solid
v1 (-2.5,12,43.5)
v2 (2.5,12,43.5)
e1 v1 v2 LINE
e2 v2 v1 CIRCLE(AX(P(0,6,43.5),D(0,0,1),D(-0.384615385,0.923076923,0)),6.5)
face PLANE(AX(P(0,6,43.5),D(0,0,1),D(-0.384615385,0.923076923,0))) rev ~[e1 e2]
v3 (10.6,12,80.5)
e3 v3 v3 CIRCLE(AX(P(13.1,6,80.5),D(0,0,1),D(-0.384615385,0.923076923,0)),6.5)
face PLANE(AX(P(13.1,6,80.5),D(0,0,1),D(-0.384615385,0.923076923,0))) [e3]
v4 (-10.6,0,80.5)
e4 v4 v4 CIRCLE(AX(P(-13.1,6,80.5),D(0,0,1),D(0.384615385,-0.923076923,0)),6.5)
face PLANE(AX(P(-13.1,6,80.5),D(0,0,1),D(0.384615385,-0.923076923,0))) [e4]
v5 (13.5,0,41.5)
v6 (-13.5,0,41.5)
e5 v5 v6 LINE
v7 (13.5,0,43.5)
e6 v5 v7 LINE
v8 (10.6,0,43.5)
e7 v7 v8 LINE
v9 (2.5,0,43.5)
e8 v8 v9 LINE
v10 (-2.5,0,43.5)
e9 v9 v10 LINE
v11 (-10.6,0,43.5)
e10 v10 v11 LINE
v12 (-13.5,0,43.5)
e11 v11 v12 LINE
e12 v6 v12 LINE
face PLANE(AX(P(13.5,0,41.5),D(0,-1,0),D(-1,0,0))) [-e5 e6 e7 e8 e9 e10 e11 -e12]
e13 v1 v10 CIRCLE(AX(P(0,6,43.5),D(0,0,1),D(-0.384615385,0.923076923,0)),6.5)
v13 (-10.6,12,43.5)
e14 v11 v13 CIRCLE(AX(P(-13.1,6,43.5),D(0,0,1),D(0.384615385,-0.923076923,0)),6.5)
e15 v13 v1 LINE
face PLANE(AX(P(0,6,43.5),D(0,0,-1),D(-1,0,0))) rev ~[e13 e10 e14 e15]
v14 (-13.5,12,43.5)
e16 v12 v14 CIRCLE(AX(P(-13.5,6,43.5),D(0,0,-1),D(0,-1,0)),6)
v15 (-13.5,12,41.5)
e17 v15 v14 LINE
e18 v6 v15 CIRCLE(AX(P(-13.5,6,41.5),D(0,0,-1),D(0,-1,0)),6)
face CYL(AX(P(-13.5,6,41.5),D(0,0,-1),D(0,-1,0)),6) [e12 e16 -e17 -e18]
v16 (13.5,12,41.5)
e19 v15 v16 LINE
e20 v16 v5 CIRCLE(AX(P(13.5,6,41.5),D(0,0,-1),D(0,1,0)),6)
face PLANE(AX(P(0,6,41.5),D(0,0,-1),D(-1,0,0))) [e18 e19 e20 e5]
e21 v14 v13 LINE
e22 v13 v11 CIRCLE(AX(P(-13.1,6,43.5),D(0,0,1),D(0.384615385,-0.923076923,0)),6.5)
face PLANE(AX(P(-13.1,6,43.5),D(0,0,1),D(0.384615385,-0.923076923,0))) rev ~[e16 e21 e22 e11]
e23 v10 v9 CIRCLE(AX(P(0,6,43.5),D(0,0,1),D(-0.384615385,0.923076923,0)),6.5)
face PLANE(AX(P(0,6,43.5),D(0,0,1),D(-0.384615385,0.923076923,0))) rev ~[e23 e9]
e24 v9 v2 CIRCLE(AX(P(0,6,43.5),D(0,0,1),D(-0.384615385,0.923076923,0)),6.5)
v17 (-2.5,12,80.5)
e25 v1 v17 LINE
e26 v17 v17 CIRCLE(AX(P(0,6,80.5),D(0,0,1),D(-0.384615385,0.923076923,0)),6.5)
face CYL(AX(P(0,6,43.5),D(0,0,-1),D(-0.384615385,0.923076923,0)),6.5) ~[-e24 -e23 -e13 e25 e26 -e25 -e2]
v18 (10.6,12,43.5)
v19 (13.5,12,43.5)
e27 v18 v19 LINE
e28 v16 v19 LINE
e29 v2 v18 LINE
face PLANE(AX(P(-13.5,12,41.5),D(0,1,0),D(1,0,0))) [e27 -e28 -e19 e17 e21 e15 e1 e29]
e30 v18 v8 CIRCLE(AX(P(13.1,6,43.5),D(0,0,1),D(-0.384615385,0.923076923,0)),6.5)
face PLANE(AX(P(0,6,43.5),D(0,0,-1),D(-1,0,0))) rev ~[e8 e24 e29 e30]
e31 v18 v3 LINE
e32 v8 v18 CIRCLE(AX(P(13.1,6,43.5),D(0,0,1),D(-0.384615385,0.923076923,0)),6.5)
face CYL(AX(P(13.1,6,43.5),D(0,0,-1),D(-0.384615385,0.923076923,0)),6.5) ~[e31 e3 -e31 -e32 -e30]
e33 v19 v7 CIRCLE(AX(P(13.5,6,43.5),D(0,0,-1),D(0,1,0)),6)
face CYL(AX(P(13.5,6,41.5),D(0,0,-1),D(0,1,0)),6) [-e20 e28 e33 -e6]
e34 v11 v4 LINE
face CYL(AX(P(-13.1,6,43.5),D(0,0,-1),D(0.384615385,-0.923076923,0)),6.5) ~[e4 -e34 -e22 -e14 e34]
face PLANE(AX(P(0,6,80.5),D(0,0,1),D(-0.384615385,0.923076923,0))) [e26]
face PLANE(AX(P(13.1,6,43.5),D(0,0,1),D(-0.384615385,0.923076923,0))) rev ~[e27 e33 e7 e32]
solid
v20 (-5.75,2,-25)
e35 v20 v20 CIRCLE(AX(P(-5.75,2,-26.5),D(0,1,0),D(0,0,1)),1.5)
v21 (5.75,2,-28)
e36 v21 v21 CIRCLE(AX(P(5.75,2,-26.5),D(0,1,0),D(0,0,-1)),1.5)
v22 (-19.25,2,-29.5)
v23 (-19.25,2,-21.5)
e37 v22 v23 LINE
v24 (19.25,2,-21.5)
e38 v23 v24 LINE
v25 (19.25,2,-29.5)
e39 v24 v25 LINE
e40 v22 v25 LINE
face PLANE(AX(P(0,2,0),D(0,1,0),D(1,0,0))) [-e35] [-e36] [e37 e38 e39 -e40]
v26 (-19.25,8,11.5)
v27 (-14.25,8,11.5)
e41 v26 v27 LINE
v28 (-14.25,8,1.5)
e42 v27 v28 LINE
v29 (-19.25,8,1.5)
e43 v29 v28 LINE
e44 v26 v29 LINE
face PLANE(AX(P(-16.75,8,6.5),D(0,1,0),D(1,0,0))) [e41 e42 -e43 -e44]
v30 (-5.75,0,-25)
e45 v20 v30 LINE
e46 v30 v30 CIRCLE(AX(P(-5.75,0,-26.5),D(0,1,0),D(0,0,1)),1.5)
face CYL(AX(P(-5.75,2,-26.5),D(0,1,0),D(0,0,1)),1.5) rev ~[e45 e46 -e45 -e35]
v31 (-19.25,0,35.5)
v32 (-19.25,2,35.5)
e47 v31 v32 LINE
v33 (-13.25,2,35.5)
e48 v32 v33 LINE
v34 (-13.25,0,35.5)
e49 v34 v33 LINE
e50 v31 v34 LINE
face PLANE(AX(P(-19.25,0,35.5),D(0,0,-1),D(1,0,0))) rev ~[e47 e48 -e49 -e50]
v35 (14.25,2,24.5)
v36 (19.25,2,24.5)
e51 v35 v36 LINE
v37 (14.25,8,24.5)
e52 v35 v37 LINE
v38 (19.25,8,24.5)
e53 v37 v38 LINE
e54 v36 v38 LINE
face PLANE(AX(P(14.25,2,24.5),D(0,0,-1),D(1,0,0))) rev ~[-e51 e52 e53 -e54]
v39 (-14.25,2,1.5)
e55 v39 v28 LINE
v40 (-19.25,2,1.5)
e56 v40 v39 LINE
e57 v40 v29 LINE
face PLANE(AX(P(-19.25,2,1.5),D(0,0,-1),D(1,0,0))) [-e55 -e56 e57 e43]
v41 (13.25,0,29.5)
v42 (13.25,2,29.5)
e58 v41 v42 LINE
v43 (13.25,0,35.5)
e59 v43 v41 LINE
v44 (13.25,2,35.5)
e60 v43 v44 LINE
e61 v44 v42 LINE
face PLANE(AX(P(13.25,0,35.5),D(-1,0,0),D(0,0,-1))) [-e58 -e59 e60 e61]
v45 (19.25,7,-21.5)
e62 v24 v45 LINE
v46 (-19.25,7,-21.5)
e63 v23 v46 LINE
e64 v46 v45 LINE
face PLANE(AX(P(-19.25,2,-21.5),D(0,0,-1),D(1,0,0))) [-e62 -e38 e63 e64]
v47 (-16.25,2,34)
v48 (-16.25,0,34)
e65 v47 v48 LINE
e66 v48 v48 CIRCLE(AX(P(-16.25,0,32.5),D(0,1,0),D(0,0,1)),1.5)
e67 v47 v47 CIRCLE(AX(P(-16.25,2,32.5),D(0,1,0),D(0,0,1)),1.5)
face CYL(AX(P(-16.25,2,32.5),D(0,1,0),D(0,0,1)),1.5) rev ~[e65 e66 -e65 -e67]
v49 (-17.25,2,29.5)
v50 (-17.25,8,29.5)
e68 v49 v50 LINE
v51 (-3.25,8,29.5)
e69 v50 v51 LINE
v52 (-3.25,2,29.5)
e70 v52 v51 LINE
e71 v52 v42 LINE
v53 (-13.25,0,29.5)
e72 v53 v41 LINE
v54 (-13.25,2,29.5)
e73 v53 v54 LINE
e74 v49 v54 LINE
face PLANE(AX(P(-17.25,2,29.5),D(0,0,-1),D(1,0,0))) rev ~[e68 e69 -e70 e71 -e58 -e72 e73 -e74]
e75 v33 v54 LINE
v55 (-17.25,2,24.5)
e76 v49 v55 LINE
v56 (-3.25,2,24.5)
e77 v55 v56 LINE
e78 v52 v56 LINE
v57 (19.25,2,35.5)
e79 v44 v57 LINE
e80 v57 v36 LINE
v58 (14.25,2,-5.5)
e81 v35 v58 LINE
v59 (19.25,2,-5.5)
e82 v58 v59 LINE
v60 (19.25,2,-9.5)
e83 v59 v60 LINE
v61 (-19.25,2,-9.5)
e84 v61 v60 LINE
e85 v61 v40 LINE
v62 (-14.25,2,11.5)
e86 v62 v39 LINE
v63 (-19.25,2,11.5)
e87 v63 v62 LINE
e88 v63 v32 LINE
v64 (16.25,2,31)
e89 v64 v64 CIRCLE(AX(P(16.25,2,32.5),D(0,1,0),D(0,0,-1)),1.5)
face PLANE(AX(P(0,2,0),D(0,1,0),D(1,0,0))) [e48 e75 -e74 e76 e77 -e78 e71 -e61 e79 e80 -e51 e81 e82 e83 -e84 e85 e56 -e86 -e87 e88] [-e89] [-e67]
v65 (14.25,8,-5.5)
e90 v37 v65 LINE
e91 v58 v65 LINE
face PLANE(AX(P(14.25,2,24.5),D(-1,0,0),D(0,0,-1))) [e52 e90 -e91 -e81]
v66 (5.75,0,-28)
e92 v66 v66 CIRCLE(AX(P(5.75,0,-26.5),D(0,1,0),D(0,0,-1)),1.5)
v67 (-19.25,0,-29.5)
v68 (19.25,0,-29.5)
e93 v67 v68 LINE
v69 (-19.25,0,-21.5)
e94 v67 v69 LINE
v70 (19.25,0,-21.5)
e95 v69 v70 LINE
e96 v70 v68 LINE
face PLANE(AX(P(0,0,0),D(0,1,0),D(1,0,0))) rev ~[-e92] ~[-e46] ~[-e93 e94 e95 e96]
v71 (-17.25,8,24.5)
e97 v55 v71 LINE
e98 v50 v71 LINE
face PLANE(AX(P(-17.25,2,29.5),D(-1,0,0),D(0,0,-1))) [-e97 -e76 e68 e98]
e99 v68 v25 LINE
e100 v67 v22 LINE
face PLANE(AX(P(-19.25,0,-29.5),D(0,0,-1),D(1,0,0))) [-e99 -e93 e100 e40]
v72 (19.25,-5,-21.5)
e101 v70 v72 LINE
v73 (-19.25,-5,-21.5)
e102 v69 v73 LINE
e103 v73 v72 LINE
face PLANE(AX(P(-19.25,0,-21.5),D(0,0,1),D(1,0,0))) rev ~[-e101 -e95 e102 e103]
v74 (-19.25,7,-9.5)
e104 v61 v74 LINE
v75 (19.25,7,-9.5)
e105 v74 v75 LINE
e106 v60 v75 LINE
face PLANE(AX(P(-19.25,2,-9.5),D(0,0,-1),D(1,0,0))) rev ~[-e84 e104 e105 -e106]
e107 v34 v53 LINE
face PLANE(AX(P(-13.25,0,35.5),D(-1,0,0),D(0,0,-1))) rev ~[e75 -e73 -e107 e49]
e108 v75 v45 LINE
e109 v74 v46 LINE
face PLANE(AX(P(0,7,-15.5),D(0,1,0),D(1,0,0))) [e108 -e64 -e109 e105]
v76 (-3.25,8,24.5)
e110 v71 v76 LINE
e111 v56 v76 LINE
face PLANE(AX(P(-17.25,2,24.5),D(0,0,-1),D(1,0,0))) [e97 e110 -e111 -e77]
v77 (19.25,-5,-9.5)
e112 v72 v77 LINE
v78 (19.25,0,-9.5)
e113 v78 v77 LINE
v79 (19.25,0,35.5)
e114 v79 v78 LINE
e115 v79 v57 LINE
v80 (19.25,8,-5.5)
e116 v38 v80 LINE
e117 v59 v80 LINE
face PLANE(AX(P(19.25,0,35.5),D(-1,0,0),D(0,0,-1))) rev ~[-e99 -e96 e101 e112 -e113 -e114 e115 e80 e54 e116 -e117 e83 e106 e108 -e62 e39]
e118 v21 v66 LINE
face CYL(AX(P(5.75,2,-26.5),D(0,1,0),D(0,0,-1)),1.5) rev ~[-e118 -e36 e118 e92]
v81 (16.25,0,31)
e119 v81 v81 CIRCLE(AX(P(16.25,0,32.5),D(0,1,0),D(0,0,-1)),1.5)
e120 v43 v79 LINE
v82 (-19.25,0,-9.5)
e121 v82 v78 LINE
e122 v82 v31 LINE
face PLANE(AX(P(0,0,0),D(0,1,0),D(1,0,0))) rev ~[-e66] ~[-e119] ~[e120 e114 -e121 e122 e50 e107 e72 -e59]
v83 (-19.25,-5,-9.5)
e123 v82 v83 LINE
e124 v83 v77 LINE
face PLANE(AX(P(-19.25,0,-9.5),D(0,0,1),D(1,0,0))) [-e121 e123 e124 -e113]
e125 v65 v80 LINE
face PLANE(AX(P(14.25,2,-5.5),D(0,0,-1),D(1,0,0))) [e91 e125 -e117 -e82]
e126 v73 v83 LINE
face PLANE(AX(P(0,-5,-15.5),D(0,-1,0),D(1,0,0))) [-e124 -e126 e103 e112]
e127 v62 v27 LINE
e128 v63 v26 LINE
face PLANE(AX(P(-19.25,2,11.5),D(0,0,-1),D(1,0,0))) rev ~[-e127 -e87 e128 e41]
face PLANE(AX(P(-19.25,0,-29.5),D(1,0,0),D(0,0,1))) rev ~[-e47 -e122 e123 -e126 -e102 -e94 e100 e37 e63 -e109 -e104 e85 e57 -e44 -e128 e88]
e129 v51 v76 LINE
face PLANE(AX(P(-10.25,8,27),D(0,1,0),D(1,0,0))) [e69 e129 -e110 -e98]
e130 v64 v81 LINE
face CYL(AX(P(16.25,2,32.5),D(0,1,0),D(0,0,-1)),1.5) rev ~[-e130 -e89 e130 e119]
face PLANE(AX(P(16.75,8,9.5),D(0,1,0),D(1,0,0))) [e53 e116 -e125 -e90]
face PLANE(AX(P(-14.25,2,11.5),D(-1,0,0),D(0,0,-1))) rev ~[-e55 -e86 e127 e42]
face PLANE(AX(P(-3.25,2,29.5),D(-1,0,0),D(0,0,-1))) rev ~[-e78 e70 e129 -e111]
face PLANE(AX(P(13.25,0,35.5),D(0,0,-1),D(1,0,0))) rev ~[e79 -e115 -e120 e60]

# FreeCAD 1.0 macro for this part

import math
import FreeCAD as App
import Part
import Sketcher

V = App.Vector

doc = App.newDocument("Part")
body = doc.addObject("PartDesign::Body", "Body")

# Sketch on XZ plane
sketch1 = body.newObject("Sketcher::SketchObject", "Sketch")
sketch1.AttachmentSupport = (doc.getObject("XZ_Plane"), [""])
sketch1.MapMode = "FlatFace"
sketch1.addGeometry(Part.LineSegment(V(-19, -30, 0), V(-19, 36, 0)), False)
sketch1.addGeometry(Part.LineSegment(V(-19, 36, 0), V(-13, 36, 0)), False)
sketch1.addGeometry(Part.LineSegment(V(-13, 36, 0), V(-13, 30, 0)), False)
sketch1.addGeometry(Part.LineSegment(V(-13, 30, 0), V(13, 30, 0)), False)
sketch1.addGeometry(Part.LineSegment(V(13, 30, 0), V(13, 36, 0)), False)
sketch1.addGeometry(Part.LineSegment(V(13, 36, 0), V(19, 36, 0)), False)
sketch1.addGeometry(Part.LineSegment(V(19, 36, 0), V(19, -30, 0)), False)
sketch1.addGeometry(Part.LineSegment(V(19, -30, 0), V(-19, -30, 0)), False)
sketch1.addConstraint(Sketcher.Constraint("Coincident", 0, 2, 1, 1))
sketch1.addConstraint(Sketcher.Constraint("Coincident", 1, 2, 2, 1))
sketch1.addConstraint(Sketcher.Constraint("Coincident", 2, 2, 3, 1))
sketch1.addConstraint(Sketcher.Constraint("Coincident", 3, 2, 4, 1))
sketch1.addConstraint(Sketcher.Constraint("Coincident", 4, 2, 5, 1))
sketch1.addConstraint(Sketcher.Constraint("Coincident", 5, 2, 6, 1))
sketch1.addConstraint(Sketcher.Constraint("Coincident", 6, 2, 7, 1))
sketch1.addConstraint(Sketcher.Constraint("Coincident", 7, 2, 0, 1))
sketch1.addConstraint(Sketcher.Constraint("Vertical", 0))
sketch1.addConstraint(Sketcher.Constraint("Horizontal", 1))
sketch1.addConstraint(Sketcher.Constraint("Vertical", 2))
sketch1.addConstraint(Sketcher.Constraint("Horizontal", 3))
sketch1.addConstraint(Sketcher.Constraint("Vertical", 4))
sketch1.addConstraint(Sketcher.Constraint("Horizontal", 5))
sketch1.addConstraint(Sketcher.Constraint("Vertical", 6))
sketch1.addConstraint(Sketcher.Constraint("Horizontal", 7))
sketch1.addConstraint(Sketcher.Constraint("Symmetric", 1, 2, 4, 2, -2))
sketch1.addConstraint(Sketcher.Constraint("Equal", 1, 5))
sketch1.addConstraint(Sketcher.Constraint("Equal", 5, 2))
sketch1.addConstraint(Sketcher.Constraint("DistanceX", 1, 1, 1, 2, 6.0))
sketch1.addConstraint(Sketcher.Constraint("DistanceY", 0, 1, 0, 2, 65.0))
sketch1.addConstraint(Sketcher.Constraint("DistanceX", 3, 1, 3, 2, 26.5))
sketch1.addConstraint(Sketcher.Constraint("DistanceY", -1, 1, 0, 2, 35.5))
pad1 = body.newObject("PartDesign::Pad", "Pad")
pad1.Profile = sketch1
pad1.Length = 2
pad1.Reversed = True

# Sketch on XZ plane
sketch2 = body.newObject("Sketcher::SketchObject", "Sketch001")
sketch2.AttachmentSupport = (doc.getObject("XZ_Plane"), [""])
sketch2.MapMode = "FlatFace"
sketch2.AttachmentOffset = App.Placement(V(0, 0, -2), App.Rotation())
sketch2.addGeometry(Part.Circle(V(-16.2, 32.5, 0), V(0, 0, 1), 1.5), False)
sketch2.addGeometry(Part.Circle(V(5.8, -26.5, 0), V(0, 0, 1), 1.5), False)
sketch2.addGeometry(Part.Circle(V(-5.8, -26.5, 0), V(0, 0, 1), 1.5), False)
sketch2.addGeometry(Part.Circle(V(16.2, 32.5, 0), V(0, 0, 1), 1.5), False)
sketch2.addConstraint(Sketcher.Constraint("Equal", 0, 1))
sketch2.addConstraint(Sketcher.Constraint("Equal", 1, 2))
sketch2.addConstraint(Sketcher.Constraint("Equal", 2, 3))
sketch2.addConstraint(Sketcher.Constraint("Symmetric", 1, 3, 2, 3, -2))
sketch2.addConstraint(Sketcher.Constraint("Symmetric", 0, 3, 3, 3, -2))
sketch2.addConstraint(Sketcher.Constraint("Diameter", 0, 3.0))
sketch2.addConstraint(Sketcher.Constraint("DistanceX", 0, 3, 1, 3, 22.0))
sketch2.addConstraint(Sketcher.Constraint("DistanceY", 1, 3, 0, 3, 59.0))
sketch2.addConstraint(Sketcher.Constraint("DistanceY", -1, 1, 0, 3, 32.5))
sketch2.addConstraint(Sketcher.Constraint("DistanceX", 2, 3, 1, 3, 11.5))
pocket1 = body.newObject("PartDesign::Pocket", "Pocket")
pocket1.Profile = sketch2
pocket1.Type = "ThroughAll"
pocket1.Reversed = True

# Sketch on XZ plane
sketch3 = body.newObject("Sketcher::SketchObject", "Sketch002")
sketch3.AttachmentSupport = (doc.getObject("XZ_Plane"), [""])
sketch3.MapMode = "FlatFace"
sketch3.AttachmentOffset = App.Placement(V(0, 0, -2), App.Rotation())
sketch3.addGeometry(Part.LineSegment(V(14, -6, 0), V(14, 24, 0)), False)
sketch3.addGeometry(Part.LineSegment(V(14, 24, 0), V(19, 24, 0)), False)
sketch3.addGeometry(Part.LineSegment(V(19, 24, 0), V(19, -6, 0)), False)
sketch3.addGeometry(Part.LineSegment(V(19, -6, 0), V(14, -6, 0)), False)
sketch3.addGeometry(Part.LineSegment(V(-19, 2, 0), V(-19, 12, 0)), False)
sketch3.addGeometry(Part.LineSegment(V(-19, 12, 0), V(-14, 12, 0)), False)
sketch3.addGeometry(Part.LineSegment(V(-14, 12, 0), V(-14, 2, 0)), False)
sketch3.addGeometry(Part.LineSegment(V(-14, 2, 0), V(-19, 2, 0)), False)
sketch3.addGeometry(Part.LineSegment(V(-17, 24, 0), V(-17, 30, 0)), False)
sketch3.addGeometry(Part.LineSegment(V(-17, 30, 0), V(-3, 30, 0)), False)
sketch3.addGeometry(Part.LineSegment(V(-3, 30, 0), V(-3, 24, 0)), False)
sketch3.addGeometry(Part.LineSegment(V(-3, 24, 0), V(-17, 24, 0)), False)
sketch3.addConstraint(Sketcher.Constraint("Coincident", 0, 2, 1, 1))
sketch3.addConstraint(Sketcher.Constraint("Coincident", 1, 2, 2, 1))
sketch3.addConstraint(Sketcher.Constraint("Coincident", 2, 2, 3, 1))
sketch3.addConstraint(Sketcher.Constraint("Coincident", 3, 2, 0, 1))
sketch3.addConstraint(Sketcher.Constraint("Coincident", 4, 2, 5, 1))
sketch3.addConstraint(Sketcher.Constraint("Coincident", 5, 2, 6, 1))
sketch3.addConstraint(Sketcher.Constraint("Coincident", 6, 2, 7, 1))
sketch3.addConstraint(Sketcher.Constraint("Coincident", 7, 2, 4, 1))
sketch3.addConstraint(Sketcher.Constraint("Coincident", 8, 2, 9, 1))
sketch3.addConstraint(Sketcher.Constraint("Coincident", 9, 2, 10, 1))
sketch3.addConstraint(Sketcher.Constraint("Coincident", 10, 2, 11, 1))
sketch3.addConstraint(Sketcher.Constraint("Coincident", 11, 2, 8, 1))
sketch3.addConstraint(Sketcher.Constraint("Vertical", 0))
sketch3.addConstraint(Sketcher.Constraint("Horizontal", 1))
sketch3.addConstraint(Sketcher.Constraint("Vertical", 2))
sketch3.addConstraint(Sketcher.Constraint("Horizontal", 3))
sketch3.addConstraint(Sketcher.Constraint("Vertical", 4))
sketch3.addConstraint(Sketcher.Constraint("Horizontal", 5))
sketch3.addConstraint(Sketcher.Constraint("Vertical", 6))
sketch3.addConstraint(Sketcher.Constraint("Horizontal", 7))
sketch3.addConstraint(Sketcher.Constraint("Vertical", 8))
sketch3.addConstraint(Sketcher.Constraint("Horizontal", 9))
sketch3.addConstraint(Sketcher.Constraint("Vertical", 10))
sketch3.addConstraint(Sketcher.Constraint("Horizontal", 11))
sketch3.addConstraint(Sketcher.Constraint("Horizontal", 1, 2, 10, 2))
sketch3.addConstraint(Sketcher.Constraint("Equal", 3, 5))
sketch3.addConstraint(Sketcher.Constraint("Equal", 7, 8))
sketch3.addConstraint(Sketcher.Constraint("DistanceX", 1, 1, 1, 2, 5.0))
sketch3.addConstraint(Sketcher.Constraint("DistanceX", 9, 1, 9, 2, 14.0))
sketch3.addConstraint(Sketcher.Constraint("DistanceY", 0, 1, 0, 2, 30.0))
sketch3.addConstraint(Sketcher.Constraint("DistanceY", 4, 1, 4, 2, 10.0))
sketch3.addConstraint(Sketcher.Constraint("DistanceY", 4, 2, 0, 2, 13.0))
sketch3.addConstraint(Sketcher.Constraint("DistanceX", 4, 2, 8, 2, 2.0))
sketch3.addConstraint(Sketcher.Constraint("DistanceY", -1, 1, 0, 2, 24.5))
sketch3.addConstraint(Sketcher.Constraint("DistanceX", 4, 2, 0, 2, 33.5))
sketch3.addConstraint(Sketcher.Constraint("DistanceX", -1, 1, 0, 2, 14.25))
pad2 = body.newObject("PartDesign::Pad", "Pad001")
pad2.Profile = sketch3
pad2.Length = 6
pad2.Reversed = True

# Sketch on XZ plane
sketch4 = body.newObject("Sketcher::SketchObject", "Sketch003")
sketch4.AttachmentSupport = (doc.getObject("XZ_Plane"), [""])
sketch4.MapMode = "FlatFace"
sketch4.AttachmentOffset = App.Placement(V(0, 0, -2), App.Rotation())
sketch4.addGeometry(Part.LineSegment(V(-19, -22, 0), V(-19, -10, 0)), False)
sketch4.addGeometry(Part.LineSegment(V(-19, -10, 0), V(19, -10, 0)), False)
sketch4.addGeometry(Part.LineSegment(V(19, -10, 0), V(19, -22, 0)), False)
sketch4.addGeometry(Part.LineSegment(V(19, -22, 0), V(-19, -22, 0)), False)
sketch4.addConstraint(Sketcher.Constraint("Coincident", 0, 2, 1, 1))
sketch4.addConstraint(Sketcher.Constraint("Coincident", 1, 2, 2, 1))
sketch4.addConstraint(Sketcher.Constraint("Coincident", 2, 2, 3, 1))
sketch4.addConstraint(Sketcher.Constraint("Coincident", 3, 2, 0, 1))
sketch4.addConstraint(Sketcher.Constraint("Vertical", 0))
sketch4.addConstraint(Sketcher.Constraint("Horizontal", 1))
sketch4.addConstraint(Sketcher.Constraint("Vertical", 2))
sketch4.addConstraint(Sketcher.Constraint("Horizontal", 3))
sketch4.addConstraint(Sketcher.Constraint("DistanceY", 0, 1, 0, 2, 12.0))
sketch4.addConstraint(Sketcher.Constraint("DistanceX", 1, 1, 1, 2, 38.5))
sketch4.addConstraint(Sketcher.Constraint("DistanceY", 0, 2, -1, 1, 9.5))
sketch4.addConstraint(Sketcher.Constraint("DistanceX", 0, 2, -1, 1, 19.25))
pad3 = body.newObject("PartDesign::Pad", "Pad002")
pad3.Profile = sketch4
pad3.Length = 5
pad3.Reversed = True

# Sketch on XZ plane
sketch5 = body.newObject("Sketcher::SketchObject", "Sketch004")
sketch5.AttachmentSupport = (doc.getObject("XZ_Plane"), [""])
sketch5.MapMode = "FlatFace"
sketch5.addGeometry(Part.LineSegment(V(-19, -10, 0), V(-19, -22, 0)), False)
sketch5.addGeometry(Part.LineSegment(V(-19, -22, 0), V(19, -22, 0)), False)
sketch5.addGeometry(Part.LineSegment(V(19, -22, 0), V(19, -10, 0)), False)
sketch5.addGeometry(Part.LineSegment(V(19, -10, 0), V(-19, -10, 0)), False)
sketch5.addConstraint(Sketcher.Constraint("Coincident", 0, 2, 1, 1))
sketch5.addConstraint(Sketcher.Constraint("Coincident", 1, 2, 2, 1))
sketch5.addConstraint(Sketcher.Constraint("Coincident", 2, 2, 3, 1))
sketch5.addConstraint(Sketcher.Constraint("Coincident", 3, 2, 0, 1))
sketch5.addConstraint(Sketcher.Constraint("Vertical", 0))
sketch5.addConstraint(Sketcher.Constraint("Horizontal", 1))
sketch5.addConstraint(Sketcher.Constraint("Vertical", 2))
sketch5.addConstraint(Sketcher.Constraint("Horizontal", 3))
sketch5.addConstraint(Sketcher.Constraint("DistanceY", 0, 2, 0, 1, 12.0))
sketch5.addConstraint(Sketcher.Constraint("DistanceX", 1, 1, 1, 2, 38.5))
sketch5.addConstraint(Sketcher.Constraint("DistanceY", 0, 2, -1, 1, 21.5))
sketch5.addConstraint(Sketcher.Constraint("DistanceX", 0, 2, -1, 1, 19.25))
pad4 = body.newObject("PartDesign::Pad", "Pad003")
pad4.Profile = sketch5
pad4.Length = 5
body2 = doc.addObject("PartDesign::Body", "Body001")

# Sketch on XY plane
sketch6 = body2.newObject("Sketcher::SketchObject", "Sketch005")
sketch6.AttachmentSupport = (doc.getObject("XY_Plane001"), [""])
sketch6.MapMode = "FlatFace"
sketch6.AttachmentOffset = App.Placement(V(0, 0, 41.5), App.Rotation())
sketch6.addGeometry(Part.LineSegment(V(14, 12, 0), V(-14, 12, 0)), False)
sketch6.addGeometry(Part.ArcOfCircle(Part.Circle(V(-14, 6, 0), V(0, 0, 1), 6), math.radians(90), math.radians(270)), False)
sketch6.addGeometry(Part.LineSegment(V(-14, 0, 0), V(14, 0, 0)), False)
sketch6.addGeometry(Part.ArcOfCircle(Part.Circle(V(14, 6, 0), V(0, 0, 1), 6), math.radians(-90), math.radians(90)), False)
sketch6.addConstraint(Sketcher.Constraint("Tangent", 0, 2, 1, 1))
sketch6.addConstraint(Sketcher.Constraint("Tangent", 1, 2, 2, 1))
sketch6.addConstraint(Sketcher.Constraint("Tangent", 2, 2, 3, 1))
sketch6.addConstraint(Sketcher.Constraint("Tangent", 3, 2, 0, 1))
sketch6.addConstraint(Sketcher.Constraint("Horizontal", 0))
sketch6.addConstraint(Sketcher.Constraint("Horizontal", 2))
sketch6.addConstraint(Sketcher.Constraint("Symmetric", 1, 2, 2, 2, -1, 1))
sketch6.addConstraint(Sketcher.Constraint("Radius", 1, 6.0))
sketch6.addConstraint(Sketcher.Constraint("DistanceX", 0, 2, 0, 1, 27.0))
pad5 = body2.newObject("PartDesign::Pad", "Pad004")
pad5.Profile = sketch6
pad5.Length = 2

# Sketch on XY plane
sketch7 = body2.newObject("Sketcher::SketchObject", "Sketch006")
sketch7.AttachmentSupport = (doc.getObject("XY_Plane001"), [""])
sketch7.MapMode = "FlatFace"
sketch7.AttachmentOffset = App.Placement(V(0, 0, 43.5), App.Rotation())
sketch7.addGeometry(Part.Circle(V(-13, 6, 0), V(0, 0, 1), 6), False)
sketch7.addGeometry(Part.Circle(V(0, 6, 0), V(0, 0, 1), 6), False)
sketch7.addGeometry(Part.Circle(V(13, 6, 0), V(0, 0, 1), 6), False)
sketch7.addConstraint(Sketcher.Constraint("Equal", 0, 1))
sketch7.addConstraint(Sketcher.Constraint("Equal", 1, 2))
sketch7.addConstraint(Sketcher.Constraint("Symmetric", 0, 3, 2, 3, -2))
sketch7.addConstraint(Sketcher.Constraint("PointOnObject", 1, 3, -2))
sketch7.addConstraint(Sketcher.Constraint("Horizontal", 0, 3, 1, 3))
sketch7.addConstraint(Sketcher.Constraint("Diameter", 0, 13.0))
sketch7.addConstraint(Sketcher.Constraint("DistanceY", -1, 1, 0, 3, 6.0))
sketch7.addConstraint(Sketcher.Constraint("DistanceX", 0, 3, -1, 1, 13.1))
pad6 = body2.newObject("PartDesign::Pad", "Pad005")
pad6.Profile = sketch7
pad6.Length = 37

doc.recompute()
